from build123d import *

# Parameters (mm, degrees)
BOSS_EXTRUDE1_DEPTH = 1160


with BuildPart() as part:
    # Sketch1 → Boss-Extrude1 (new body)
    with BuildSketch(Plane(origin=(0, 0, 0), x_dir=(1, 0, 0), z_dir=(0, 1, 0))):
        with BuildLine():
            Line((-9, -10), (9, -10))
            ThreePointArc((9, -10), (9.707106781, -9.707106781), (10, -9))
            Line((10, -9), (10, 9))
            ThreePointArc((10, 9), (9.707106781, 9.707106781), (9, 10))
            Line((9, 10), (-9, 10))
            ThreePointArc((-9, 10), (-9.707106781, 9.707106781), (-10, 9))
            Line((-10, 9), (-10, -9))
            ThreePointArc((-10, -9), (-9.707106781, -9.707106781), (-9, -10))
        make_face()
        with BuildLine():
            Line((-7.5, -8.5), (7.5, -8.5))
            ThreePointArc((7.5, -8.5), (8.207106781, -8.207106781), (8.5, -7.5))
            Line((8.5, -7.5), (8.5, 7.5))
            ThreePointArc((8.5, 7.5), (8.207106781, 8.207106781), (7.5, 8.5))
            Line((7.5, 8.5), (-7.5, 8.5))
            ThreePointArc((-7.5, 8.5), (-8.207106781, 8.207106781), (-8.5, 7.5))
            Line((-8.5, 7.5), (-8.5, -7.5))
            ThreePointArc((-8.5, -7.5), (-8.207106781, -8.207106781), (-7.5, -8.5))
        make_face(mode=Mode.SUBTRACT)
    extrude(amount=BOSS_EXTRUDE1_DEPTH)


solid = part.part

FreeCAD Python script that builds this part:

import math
import FreeCAD as App
import Part
import Sketcher
Q = App.Units.Quantity

doc = App.newDocument("Part")
body = doc.addObject("PartDesign::Body", "Body")

# Sketch on XZ plane
sketch1 = doc.addObject("Sketcher::SketchObject", "Sketch")
body.addObject(sketch1)
sketch1.AttachmentSupport = (doc.XZ_Plane, [""])
sketch1.MapMode = "FlatFace"
sketch1.addGeometry(Part.LineSegment(App.Vector(-9, 10, 0), App.Vector(9, 10, 0)), False)
sketch1.addGeometry(Part.ArcOfCircle(Part.Circle(App.Vector(9, 9, 0), App.Vector(0, 0, 1), 1), math.radians(0), math.radians(90)), False)
sketch1.addGeometry(Part.LineSegment(App.Vector(10, 9, 0), App.Vector(10, -9, 0)), False)
sketch1.addGeometry(Part.ArcOfCircle(Part.Circle(App.Vector(9, -9, 0), App.Vector(0, 0, 1), 1), math.radians(-90), math.radians(0)), False)
sketch1.addGeometry(Part.LineSegment(App.Vector(9, -10, 0), App.Vector(-9, -10, 0)), False)
sketch1.addGeometry(Part.ArcOfCircle(Part.Circle(App.Vector(-9, -9, 0), App.Vector(0, 0, 1), 1), math.radians(-180), math.radians(-90)), False)
sketch1.addGeometry(Part.LineSegment(App.Vector(-10, -9, 0), App.Vector(-10, 9, 0)), False)
sketch1.addGeometry(Part.ArcOfCircle(Part.Circle(App.Vector(-9, 9, 0), App.Vector(0, 0, 1), 1), math.radians(90), math.radians(180)), False)
sketch1.addGeometry(Part.LineSegment(App.Vector(7.5, 8.5, 0), App.Vector(-7.5, 8.5, 0)), False)
sketch1.addGeometry(Part.ArcOfCircle(Part.Circle(App.Vector(-7.5, 7.5, 0), App.Vector(0, 0, 1), 1), math.radians(90), math.radians(180)), False)
sketch1.addGeometry(Part.LineSegment(App.Vector(-8.5, 7.5, 0), App.Vector(-8.5, -7.5, 0)), False)
sketch1.addGeometry(Part.ArcOfCircle(Part.Circle(App.Vector(-7.5, -7.5, 0), App.Vector(0, 0, 1), 1), math.radians(-180), math.radians(-90)), False)
sketch1.addGeometry(Part.LineSegment(App.Vector(-7.5, -8.5, 0), App.Vector(7.5, -8.5, 0)), False)
sketch1.addGeometry(Part.ArcOfCircle(Part.Circle(App.Vector(7.5, -7.5, 0), App.Vector(0, 0, 1), 1), math.radians(-90), math.radians(0)), False)
sketch1.addGeometry(Part.LineSegment(App.Vector(8.5, -7.5, 0), App.Vector(8.5, 7.5, 0)), False)
sketch1.addGeometry(Part.ArcOfCircle(Part.Circle(App.Vector(7.5, 7.5, 0), App.Vector(0, 0, 1), 1), math.radians(0), math.radians(90)), False)
sketch1.addConstraint(Sketcher.Constraint("Tangent", 0, 2, 1, 2))
sketch1.addConstraint(Sketcher.Constraint("Tangent", 1, 1, 2, 1))
sketch1.addConstraint(Sketcher.Constraint("Tangent", 2, 2, 3, 2))
sketch1.addConstraint(Sketcher.Constraint("Tangent", 3, 1, 4, 1))
sketch1.addConstraint(Sketcher.Constraint("Tangent", 4, 2, 5, 2))
sketch1.addConstraint(Sketcher.Constraint("Tangent", 5, 1, 6, 1))
sketch1.addConstraint(Sketcher.Constraint("Tangent", 6, 2, 7, 2))
sketch1.addConstraint(Sketcher.Constraint("Tangent", 7, 1, 0, 1))
sketch1.addConstraint(Sketcher.Constraint("Tangent", 8, 2, 9, 1))
sketch1.addConstraint(Sketcher.Constraint("Tangent", 9, 2, 10, 1))
sketch1.addConstraint(Sketcher.Constraint("Tangent", 10, 2, 11, 1))
sketch1.addConstraint(Sketcher.Constraint("Tangent", 11, 2, 12, 1))
sketch1.addConstraint(Sketcher.Constraint("Tangent", 12, 2, 13, 1))
sketch1.addConstraint(Sketcher.Constraint("Tangent", 13, 2, 14, 1))
sketch1.addConstraint(Sketcher.Constraint("Tangent", 14, 2, 15, 1))
sketch1.addConstraint(Sketcher.Constraint("Tangent", 15, 2, 8, 1))
sketch1.addConstraint(Sketcher.Constraint("Horizontal", 0))
sketch1.addConstraint(Sketcher.Constraint("Vertical", 2))
sketch1.addConstraint(Sketcher.Constraint("Horizontal", 4))
sketch1.addConstraint(Sketcher.Constraint("Vertical", 6))
sketch1.addConstraint(Sketcher.Constraint("Horizontal", 8))
sketch1.addConstraint(Sketcher.Constraint("Vertical", 10))
sketch1.addConstraint(Sketcher.Constraint("Horizontal", 12))
sketch1.addConstraint(Sketcher.Constraint("Vertical", 14))
sketch1.addConstraint(Sketcher.Constraint("Equal", 1, 3))
sketch1.addConstraint(Sketcher.Constraint("Equal", 3, 5))
sketch1.addConstraint(Sketcher.Constraint("Equal", 5, 7))
sketch1.addConstraint(Sketcher.Constraint("Equal", 7, 9))
sketch1.addConstraint(Sketcher.Constraint("Equal", 9, 11))
sketch1.addConstraint(Sketcher.Constraint("Equal", 11, 13))
sketch1.addConstraint(Sketcher.Constraint("Equal", 13, 15))
sketch1.addConstraint(Sketcher.Constraint("Symmetric", 1, 3, 5, 3, -1, 1))
sketch1.addConstraint(Sketcher.Constraint("Symmetric", 9, 3, 13, 3, -1, 1))
sketch1.addConstraint(Sketcher.Constraint("Equal", 4, 2))
sketch1.addConstraint(Sketcher.Constraint("Equal", 12, 10))
sketch1.addConstraint(Sketcher.Constraint("Radius", 1, Q("1 mm")))
sketch1.addConstraint(Sketcher.Constraint("DistanceX", 0, 1, 0, 2, Q("18 mm")))
sketch1.addConstraint(Sketcher.Constraint("DistanceX", 8, 2, 8, 1, Q("15 mm")))
pad1 = doc.addObject("PartDesign::Pad", "Pad")
body.addObject(pad1)
pad1.Profile = sketch1
pad1.Length = 1160
pad1.Reversed = True

doc.recompute()
